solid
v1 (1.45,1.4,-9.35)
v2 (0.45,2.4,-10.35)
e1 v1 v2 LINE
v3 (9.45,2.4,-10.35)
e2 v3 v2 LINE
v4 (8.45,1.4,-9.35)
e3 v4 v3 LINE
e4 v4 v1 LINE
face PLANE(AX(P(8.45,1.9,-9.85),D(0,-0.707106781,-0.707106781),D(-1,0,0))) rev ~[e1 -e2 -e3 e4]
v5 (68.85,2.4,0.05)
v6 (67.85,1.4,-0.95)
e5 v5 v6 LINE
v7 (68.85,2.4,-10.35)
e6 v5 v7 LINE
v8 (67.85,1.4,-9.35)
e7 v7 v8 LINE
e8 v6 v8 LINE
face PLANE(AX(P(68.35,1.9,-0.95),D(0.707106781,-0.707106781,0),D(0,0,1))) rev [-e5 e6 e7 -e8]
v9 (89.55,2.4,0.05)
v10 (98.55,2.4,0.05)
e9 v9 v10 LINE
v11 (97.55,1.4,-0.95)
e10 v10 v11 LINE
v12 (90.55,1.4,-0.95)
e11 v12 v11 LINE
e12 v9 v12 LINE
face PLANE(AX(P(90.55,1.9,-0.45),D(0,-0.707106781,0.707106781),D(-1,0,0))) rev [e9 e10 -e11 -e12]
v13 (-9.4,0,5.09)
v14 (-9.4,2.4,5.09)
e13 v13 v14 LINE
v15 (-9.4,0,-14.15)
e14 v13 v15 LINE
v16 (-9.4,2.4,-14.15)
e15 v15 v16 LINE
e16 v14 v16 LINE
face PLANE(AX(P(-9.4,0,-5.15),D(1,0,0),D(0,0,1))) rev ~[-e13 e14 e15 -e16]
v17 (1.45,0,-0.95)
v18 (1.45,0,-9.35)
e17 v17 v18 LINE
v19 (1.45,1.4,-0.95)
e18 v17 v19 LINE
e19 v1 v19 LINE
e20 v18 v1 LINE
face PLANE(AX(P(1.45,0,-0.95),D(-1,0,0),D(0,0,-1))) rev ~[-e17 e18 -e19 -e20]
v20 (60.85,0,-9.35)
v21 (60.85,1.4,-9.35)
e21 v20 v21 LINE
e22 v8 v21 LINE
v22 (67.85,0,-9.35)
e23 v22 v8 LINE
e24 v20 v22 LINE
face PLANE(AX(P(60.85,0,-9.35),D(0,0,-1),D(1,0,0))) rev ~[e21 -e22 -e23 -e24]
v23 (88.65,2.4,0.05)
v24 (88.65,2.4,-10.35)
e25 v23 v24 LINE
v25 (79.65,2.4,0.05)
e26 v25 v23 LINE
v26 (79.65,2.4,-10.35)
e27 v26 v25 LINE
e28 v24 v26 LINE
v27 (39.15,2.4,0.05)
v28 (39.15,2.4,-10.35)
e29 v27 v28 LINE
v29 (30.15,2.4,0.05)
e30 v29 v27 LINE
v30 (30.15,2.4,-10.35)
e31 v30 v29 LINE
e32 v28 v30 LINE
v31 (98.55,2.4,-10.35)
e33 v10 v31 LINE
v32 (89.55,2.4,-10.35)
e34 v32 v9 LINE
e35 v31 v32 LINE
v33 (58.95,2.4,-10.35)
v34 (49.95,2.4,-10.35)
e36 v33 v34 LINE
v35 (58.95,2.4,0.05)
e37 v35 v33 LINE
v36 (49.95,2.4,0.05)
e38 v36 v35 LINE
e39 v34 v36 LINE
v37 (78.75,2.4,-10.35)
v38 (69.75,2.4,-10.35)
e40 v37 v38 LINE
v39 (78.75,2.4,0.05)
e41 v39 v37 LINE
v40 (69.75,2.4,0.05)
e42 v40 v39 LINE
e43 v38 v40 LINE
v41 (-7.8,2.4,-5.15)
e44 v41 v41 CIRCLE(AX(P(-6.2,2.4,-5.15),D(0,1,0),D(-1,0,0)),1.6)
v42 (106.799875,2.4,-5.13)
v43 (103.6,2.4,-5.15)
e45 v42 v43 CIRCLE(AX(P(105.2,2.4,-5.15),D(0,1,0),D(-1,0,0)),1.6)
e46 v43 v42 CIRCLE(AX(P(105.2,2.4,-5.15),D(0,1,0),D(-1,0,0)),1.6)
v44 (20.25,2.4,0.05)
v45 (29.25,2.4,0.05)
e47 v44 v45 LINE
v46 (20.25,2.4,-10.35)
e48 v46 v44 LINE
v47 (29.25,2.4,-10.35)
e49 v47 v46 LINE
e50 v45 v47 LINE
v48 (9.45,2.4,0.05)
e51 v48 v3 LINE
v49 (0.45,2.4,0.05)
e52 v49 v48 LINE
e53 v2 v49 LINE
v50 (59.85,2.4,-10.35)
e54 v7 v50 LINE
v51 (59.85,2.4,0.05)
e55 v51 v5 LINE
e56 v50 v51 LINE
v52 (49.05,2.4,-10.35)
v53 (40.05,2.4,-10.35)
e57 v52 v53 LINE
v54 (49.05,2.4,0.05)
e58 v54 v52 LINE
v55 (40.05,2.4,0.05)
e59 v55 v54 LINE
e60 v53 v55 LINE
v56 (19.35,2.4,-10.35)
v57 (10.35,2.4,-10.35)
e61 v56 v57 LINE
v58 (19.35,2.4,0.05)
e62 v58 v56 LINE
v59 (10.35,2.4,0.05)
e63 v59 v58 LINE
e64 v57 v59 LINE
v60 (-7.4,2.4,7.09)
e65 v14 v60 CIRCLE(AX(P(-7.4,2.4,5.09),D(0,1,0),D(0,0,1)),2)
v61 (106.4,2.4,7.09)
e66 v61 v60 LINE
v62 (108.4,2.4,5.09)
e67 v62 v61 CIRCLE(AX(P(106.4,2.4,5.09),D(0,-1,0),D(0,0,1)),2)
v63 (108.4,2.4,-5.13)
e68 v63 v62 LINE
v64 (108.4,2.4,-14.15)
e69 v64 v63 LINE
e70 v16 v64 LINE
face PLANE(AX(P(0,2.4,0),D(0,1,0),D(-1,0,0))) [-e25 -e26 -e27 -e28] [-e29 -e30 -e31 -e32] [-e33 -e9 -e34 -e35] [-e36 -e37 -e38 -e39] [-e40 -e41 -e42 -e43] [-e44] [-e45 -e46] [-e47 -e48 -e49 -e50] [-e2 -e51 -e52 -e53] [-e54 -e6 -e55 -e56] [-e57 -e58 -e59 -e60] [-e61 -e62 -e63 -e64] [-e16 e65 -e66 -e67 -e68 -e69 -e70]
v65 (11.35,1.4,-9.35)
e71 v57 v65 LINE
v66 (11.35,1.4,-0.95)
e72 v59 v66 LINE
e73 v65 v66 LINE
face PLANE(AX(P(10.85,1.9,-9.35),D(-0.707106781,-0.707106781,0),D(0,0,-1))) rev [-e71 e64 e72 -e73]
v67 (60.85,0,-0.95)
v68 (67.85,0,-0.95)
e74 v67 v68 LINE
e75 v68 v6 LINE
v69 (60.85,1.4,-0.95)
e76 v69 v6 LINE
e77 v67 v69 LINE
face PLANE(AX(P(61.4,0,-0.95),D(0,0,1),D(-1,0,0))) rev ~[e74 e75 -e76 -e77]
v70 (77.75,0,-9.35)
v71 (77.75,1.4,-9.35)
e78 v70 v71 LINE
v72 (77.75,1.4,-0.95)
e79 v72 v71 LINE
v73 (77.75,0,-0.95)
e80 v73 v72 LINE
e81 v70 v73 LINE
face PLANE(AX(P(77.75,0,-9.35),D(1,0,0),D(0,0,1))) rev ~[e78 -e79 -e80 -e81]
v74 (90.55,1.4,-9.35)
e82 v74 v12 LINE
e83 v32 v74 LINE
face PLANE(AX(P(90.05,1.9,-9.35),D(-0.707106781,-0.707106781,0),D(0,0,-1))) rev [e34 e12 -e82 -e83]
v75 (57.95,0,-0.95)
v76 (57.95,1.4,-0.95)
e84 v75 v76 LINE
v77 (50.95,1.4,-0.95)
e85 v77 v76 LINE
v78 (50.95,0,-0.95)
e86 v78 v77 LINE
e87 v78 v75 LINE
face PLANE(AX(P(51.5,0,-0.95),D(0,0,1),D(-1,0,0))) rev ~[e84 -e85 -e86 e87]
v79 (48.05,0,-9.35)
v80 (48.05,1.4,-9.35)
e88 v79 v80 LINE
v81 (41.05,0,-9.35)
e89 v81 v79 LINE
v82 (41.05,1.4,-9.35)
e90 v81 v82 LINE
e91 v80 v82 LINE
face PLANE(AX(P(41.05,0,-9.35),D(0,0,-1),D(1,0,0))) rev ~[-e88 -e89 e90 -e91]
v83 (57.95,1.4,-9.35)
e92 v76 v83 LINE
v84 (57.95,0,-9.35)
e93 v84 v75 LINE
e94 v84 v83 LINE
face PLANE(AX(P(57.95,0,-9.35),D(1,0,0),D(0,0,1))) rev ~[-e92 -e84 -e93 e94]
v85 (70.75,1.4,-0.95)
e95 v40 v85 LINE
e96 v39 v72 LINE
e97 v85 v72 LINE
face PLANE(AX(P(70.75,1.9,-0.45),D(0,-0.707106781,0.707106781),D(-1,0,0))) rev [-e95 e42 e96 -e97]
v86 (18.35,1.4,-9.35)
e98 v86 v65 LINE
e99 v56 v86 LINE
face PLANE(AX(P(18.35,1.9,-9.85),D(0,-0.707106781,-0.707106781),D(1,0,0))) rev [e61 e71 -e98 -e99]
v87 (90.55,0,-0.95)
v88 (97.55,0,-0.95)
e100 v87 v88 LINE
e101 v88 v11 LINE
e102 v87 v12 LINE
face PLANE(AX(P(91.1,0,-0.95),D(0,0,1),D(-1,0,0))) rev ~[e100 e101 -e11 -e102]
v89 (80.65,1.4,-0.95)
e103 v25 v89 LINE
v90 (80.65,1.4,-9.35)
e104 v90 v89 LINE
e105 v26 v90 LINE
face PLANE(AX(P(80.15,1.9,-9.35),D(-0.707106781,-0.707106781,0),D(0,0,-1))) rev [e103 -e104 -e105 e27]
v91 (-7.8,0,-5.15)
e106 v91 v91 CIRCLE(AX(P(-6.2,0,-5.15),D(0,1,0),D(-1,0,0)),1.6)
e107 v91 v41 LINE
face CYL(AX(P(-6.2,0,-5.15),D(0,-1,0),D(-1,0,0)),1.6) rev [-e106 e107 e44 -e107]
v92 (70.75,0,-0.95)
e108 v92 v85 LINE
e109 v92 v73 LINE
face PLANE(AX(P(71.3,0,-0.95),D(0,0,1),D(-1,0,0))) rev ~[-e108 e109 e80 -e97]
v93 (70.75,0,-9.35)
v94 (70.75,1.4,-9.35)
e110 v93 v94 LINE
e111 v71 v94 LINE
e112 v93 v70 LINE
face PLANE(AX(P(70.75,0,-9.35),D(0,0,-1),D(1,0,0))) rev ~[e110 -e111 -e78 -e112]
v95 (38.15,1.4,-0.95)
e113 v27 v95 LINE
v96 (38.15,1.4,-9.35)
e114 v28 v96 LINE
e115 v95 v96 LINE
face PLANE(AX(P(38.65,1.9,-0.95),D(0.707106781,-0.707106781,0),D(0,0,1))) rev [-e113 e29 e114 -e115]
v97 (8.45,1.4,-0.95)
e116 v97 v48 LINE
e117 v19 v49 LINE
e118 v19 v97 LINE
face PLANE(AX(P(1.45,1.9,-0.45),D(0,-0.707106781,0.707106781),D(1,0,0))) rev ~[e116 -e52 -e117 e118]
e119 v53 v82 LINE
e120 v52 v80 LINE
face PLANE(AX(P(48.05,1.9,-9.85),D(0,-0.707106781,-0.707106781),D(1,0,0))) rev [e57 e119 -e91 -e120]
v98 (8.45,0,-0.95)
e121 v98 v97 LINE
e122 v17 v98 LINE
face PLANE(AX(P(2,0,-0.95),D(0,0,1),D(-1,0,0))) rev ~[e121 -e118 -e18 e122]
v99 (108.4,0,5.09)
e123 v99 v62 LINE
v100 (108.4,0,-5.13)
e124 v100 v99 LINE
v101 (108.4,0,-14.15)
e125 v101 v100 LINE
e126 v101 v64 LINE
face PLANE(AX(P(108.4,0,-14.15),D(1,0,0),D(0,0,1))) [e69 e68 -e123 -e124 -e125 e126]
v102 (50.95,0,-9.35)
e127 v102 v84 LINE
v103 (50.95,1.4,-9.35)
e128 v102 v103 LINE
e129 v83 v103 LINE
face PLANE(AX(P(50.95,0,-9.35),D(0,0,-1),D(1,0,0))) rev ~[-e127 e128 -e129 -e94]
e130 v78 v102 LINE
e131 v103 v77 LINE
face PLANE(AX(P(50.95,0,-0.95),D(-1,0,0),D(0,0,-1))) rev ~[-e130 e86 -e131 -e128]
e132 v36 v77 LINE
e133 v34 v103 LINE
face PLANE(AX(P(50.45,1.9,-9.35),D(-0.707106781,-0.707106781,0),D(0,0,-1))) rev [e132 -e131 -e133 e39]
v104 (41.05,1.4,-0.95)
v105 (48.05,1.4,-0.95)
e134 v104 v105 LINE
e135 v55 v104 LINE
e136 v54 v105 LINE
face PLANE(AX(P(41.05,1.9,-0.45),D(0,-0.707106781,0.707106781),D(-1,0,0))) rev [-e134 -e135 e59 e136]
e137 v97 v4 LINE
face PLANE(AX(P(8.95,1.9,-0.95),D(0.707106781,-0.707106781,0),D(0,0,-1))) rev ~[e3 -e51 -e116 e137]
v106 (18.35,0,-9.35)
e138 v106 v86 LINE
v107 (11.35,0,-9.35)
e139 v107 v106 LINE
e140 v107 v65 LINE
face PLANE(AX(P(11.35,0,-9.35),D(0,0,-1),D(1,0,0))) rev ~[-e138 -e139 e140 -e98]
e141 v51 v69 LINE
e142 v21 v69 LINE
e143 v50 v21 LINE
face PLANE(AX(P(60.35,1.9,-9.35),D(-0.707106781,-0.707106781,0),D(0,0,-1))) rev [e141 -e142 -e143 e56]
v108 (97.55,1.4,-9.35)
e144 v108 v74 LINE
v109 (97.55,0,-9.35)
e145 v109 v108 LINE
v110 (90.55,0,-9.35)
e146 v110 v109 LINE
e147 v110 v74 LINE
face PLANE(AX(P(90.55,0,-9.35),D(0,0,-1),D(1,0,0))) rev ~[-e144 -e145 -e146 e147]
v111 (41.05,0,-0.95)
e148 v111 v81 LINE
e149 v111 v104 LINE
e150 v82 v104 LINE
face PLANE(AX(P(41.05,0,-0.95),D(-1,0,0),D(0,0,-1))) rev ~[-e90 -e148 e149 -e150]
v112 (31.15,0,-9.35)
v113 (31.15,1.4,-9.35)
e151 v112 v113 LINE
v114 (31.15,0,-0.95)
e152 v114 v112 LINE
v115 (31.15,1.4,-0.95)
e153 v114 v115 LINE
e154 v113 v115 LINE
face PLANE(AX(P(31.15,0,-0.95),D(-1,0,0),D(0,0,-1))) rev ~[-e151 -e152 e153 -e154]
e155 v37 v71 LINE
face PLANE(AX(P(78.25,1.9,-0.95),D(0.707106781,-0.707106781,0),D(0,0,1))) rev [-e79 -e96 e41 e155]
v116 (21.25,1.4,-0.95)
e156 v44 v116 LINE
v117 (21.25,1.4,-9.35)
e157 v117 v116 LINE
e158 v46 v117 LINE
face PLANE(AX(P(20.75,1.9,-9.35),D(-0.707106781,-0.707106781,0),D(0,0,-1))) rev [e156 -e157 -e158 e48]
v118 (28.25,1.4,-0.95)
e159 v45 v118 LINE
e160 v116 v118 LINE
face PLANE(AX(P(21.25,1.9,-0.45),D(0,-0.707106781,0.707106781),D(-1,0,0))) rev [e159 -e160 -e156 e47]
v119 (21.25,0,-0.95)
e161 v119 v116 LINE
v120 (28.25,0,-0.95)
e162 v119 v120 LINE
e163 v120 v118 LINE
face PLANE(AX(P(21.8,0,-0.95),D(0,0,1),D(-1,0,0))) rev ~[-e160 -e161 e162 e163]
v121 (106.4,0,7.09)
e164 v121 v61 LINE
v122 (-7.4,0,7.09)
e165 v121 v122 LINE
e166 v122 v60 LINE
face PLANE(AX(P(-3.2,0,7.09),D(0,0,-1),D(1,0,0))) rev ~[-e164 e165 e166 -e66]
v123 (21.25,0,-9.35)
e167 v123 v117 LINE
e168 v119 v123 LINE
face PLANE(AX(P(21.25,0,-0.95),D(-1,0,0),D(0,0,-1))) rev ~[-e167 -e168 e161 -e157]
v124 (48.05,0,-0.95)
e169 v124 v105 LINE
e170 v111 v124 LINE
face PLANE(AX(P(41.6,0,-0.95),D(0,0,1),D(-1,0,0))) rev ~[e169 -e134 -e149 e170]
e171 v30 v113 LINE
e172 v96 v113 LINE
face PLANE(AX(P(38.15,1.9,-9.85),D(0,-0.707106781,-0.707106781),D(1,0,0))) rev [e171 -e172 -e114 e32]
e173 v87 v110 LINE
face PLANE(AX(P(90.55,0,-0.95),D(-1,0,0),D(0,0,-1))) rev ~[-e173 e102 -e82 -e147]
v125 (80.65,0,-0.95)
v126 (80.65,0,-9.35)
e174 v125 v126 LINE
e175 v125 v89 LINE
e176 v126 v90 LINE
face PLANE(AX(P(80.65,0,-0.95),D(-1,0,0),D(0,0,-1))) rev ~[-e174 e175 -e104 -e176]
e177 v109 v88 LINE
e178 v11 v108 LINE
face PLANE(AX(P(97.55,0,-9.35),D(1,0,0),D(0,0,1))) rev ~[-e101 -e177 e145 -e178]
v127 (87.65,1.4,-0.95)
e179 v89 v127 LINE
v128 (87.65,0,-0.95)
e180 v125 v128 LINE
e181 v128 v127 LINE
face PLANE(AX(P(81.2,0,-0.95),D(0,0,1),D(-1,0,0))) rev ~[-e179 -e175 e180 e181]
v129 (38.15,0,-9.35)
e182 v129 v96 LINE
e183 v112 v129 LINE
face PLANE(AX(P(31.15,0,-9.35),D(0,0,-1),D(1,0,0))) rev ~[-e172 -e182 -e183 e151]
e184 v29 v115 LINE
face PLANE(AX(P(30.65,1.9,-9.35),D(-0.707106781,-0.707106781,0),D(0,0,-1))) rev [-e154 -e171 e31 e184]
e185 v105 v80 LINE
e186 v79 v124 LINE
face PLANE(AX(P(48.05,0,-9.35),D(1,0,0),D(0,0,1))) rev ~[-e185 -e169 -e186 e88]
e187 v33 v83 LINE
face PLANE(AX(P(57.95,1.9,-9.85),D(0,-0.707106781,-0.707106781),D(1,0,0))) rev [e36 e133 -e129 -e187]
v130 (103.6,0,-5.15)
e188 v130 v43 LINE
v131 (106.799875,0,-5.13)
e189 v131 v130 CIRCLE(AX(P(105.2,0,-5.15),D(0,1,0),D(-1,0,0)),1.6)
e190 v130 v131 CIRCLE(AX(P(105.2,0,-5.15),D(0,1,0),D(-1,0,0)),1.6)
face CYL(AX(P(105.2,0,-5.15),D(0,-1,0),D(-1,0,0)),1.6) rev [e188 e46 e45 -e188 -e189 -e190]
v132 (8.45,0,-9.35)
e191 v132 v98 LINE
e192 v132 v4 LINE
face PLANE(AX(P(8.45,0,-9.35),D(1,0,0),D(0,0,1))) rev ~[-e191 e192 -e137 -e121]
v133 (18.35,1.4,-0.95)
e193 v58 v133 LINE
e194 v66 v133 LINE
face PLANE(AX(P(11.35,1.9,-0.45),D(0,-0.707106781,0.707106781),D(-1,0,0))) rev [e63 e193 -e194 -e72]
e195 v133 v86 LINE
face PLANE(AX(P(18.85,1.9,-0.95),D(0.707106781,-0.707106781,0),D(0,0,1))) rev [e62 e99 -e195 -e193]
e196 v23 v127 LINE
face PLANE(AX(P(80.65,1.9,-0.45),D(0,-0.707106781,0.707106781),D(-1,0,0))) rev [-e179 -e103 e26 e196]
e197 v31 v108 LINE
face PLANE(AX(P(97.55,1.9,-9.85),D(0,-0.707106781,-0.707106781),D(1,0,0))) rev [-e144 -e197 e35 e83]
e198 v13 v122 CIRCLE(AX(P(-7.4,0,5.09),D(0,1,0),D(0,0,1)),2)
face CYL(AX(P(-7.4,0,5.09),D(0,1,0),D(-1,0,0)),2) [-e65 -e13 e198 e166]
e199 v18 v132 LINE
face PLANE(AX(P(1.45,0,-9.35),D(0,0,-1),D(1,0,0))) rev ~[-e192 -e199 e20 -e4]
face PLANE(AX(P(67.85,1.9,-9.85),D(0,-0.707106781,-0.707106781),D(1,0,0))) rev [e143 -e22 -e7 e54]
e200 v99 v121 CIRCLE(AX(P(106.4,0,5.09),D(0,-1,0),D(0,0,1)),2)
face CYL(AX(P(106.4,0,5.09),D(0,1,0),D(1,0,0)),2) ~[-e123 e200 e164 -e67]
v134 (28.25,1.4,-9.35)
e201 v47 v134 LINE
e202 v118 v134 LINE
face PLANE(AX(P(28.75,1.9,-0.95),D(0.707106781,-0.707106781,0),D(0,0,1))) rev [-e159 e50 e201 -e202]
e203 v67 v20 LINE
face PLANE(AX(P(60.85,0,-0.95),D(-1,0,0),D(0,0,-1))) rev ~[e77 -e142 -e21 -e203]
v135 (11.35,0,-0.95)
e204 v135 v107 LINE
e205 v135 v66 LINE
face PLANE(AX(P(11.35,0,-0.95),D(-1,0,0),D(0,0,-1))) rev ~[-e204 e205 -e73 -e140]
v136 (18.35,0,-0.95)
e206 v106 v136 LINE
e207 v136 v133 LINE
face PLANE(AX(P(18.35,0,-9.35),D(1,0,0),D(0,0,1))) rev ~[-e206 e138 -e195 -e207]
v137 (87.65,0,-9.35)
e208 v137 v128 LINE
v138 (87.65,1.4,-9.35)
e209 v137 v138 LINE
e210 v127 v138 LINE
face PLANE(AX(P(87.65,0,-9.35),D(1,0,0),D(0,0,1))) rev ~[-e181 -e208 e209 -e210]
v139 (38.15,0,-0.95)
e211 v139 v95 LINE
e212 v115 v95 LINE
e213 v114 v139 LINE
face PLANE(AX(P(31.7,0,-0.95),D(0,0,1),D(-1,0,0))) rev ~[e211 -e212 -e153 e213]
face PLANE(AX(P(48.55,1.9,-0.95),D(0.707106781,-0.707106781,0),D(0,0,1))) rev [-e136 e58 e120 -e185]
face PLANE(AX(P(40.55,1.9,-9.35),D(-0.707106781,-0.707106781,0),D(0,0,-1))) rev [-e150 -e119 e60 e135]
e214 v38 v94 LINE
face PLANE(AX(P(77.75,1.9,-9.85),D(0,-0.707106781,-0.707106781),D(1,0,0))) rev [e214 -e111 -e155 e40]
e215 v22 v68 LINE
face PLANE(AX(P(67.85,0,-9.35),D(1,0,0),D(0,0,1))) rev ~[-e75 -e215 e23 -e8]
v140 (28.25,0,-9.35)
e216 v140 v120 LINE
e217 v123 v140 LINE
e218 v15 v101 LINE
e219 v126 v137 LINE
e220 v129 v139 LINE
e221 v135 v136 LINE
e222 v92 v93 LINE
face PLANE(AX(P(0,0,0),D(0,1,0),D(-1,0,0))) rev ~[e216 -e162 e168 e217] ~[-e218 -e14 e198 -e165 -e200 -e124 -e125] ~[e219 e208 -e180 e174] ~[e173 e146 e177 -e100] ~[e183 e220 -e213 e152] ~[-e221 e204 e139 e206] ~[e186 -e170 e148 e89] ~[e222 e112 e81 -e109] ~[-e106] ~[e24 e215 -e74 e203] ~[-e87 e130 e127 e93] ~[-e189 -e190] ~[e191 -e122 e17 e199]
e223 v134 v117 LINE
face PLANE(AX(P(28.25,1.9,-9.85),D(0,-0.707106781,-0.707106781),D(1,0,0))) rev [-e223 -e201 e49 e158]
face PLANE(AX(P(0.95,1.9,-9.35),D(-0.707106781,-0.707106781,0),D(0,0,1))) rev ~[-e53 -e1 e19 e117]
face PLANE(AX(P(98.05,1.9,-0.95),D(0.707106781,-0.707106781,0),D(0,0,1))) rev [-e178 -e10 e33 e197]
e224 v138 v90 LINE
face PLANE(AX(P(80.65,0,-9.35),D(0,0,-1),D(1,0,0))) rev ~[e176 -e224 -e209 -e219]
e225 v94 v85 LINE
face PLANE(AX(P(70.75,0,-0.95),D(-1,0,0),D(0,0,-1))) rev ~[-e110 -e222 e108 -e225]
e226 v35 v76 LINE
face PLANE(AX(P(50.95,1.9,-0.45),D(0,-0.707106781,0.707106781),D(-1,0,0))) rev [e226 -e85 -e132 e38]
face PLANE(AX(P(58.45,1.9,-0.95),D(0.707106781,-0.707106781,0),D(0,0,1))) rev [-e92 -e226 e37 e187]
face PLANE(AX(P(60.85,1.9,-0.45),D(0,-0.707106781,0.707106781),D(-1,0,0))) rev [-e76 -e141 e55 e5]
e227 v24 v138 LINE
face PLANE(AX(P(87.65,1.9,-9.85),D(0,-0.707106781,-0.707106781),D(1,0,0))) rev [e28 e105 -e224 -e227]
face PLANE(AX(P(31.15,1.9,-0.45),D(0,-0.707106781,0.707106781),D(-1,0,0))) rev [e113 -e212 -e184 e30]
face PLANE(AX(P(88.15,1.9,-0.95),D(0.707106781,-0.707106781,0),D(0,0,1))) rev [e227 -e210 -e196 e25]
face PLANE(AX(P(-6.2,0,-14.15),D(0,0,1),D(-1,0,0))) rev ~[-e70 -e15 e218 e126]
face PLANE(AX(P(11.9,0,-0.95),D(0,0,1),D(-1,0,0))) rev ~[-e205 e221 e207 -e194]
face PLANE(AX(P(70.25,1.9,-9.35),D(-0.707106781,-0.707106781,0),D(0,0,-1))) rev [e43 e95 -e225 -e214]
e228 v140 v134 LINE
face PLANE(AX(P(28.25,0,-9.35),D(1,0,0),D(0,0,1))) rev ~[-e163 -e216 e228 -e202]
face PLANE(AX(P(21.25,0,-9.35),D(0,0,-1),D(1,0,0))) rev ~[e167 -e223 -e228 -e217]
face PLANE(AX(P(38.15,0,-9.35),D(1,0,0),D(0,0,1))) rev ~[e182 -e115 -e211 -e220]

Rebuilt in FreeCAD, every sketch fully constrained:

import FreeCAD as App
import Part
import Sketcher

V = App.Vector
Q = App.Units.Quantity


def edges_at(feature, points):
    """Names of the edges that pass closest to the given points."""
    edges = feature.Shape.Edges
    near = lambda p: min(range(len(edges)), key=lambda i: edges[i].distToShape(Part.Vertex(*p))[0])
    return sorted({f"Edge{near(p) + 1}" for p in points})

doc = App.newDocument("Part")
body = doc.addObject("PartDesign::Body", "Body")

sketch1 = body.newObject("Sketcher::SketchObject", "Sketch")
sketch1.AttachmentSupport = (doc.getObject("XZ_Plane"), [""])
sketch1.MapMode = "FlatFace"
sketch1.addGeometry([
    Part.LineSegment(V(-9.4, 7.1, 0), V(108.4, 7.1, 0)),
    Part.LineSegment(V(108.4, 7.1, 0), V(108.4, -5.1, 0)),
    Part.LineSegment(V(108.4, -5.1, 0), V(108.4, -14.2, 0)),
    Part.LineSegment(V(108.4, -14.2, 0), V(-9.4, -14.2, 0)),
    Part.LineSegment(V(-9.4, -14.2, 0), V(-9.4, 7.1, 0)),
    Part.Circle(V(-6.2, -5.2, 0), V(0, 0, 1), 1.6),
    Part.Circle(V(105.2, -5.2, 0), V(0, 0, 1), 1.6),
], False)
sketch1.addConstraint([
    Sketcher.Constraint("Coincident", 0, 2, 1, 1),
    Sketcher.Constraint("Coincident", 1, 2, 2, 1),
    Sketcher.Constraint("Coincident", 2, 2, 3, 1),
    Sketcher.Constraint("Coincident", 3, 2, 4, 1),
    Sketcher.Constraint("Coincident", 4, 2, 0, 1),
    Sketcher.Constraint("Horizontal", 0),
    Sketcher.Constraint("Vertical", 1),
    Sketcher.Constraint("Vertical", 2),
    Sketcher.Constraint("Horizontal", 3),
    Sketcher.Constraint("Vertical", 4),
    Sketcher.Constraint("Equal", 5, 6),
    Sketcher.Constraint("Horizontal", 5, 3, 6, 3),
    Sketcher.Constraint("Diameter", 5, Q("3.2 mm")),
    Sketcher.Constraint("DistanceX", 6, 3, 0, 2, Q("3.2 mm")),
    Sketcher.Constraint("DistanceX", 3, 2, 5, 3, Q("3.2 mm")),
    Sketcher.Constraint("DistanceX", 0, 1, 0, 2, Q("117.8 mm")),
    Sketcher.Constraint("DistanceY", 2, 2, 6, 3, Q("9 mm")),
    Sketcher.Constraint("DistanceY", 1, 2, 1, 1, Q("12.22 mm")),
    Sketcher.Constraint("DistanceY", 2, 2, 2, 1, Q("9.02 mm")),
    Sketcher.Constraint("DistanceX", 5, 3, -1, 1, Q("6.2 mm")),
    Sketcher.Constraint("DistanceY", 5, 3, -1, 1, Q("5.15 mm")),
])
pad1 = body.newObject("PartDesign::Pad", "Pad")
pad1.Profile = sketch1
pad1.Length = 2.4
pad1.Reversed = True

sketch2 = body.newObject("Sketcher::SketchObject", "Sketch001")
sketch2.AttachmentSupport = (doc.getObject("XZ_Plane"), [""])
sketch2.MapMode = "FlatFace"
sketch2.addGeometry([
    Part.LineSegment(V(1, -1, 0), V(8, -1, 0)),
    Part.LineSegment(V(8, -1, 0), V(8, -9, 0)),
    Part.LineSegment(V(8, -9, 0), V(1, -9, 0)),
    Part.LineSegment(V(1, -9, 0), V(1, -1, 0)),
], False)
sketch2.addConstraint([
    Sketcher.Constraint("Coincident", 0, 2, 1, 1),
    Sketcher.Constraint("Coincident", 1, 2, 2, 1),
    Sketcher.Constraint("Coincident", 2, 2, 3, 1),
    Sketcher.Constraint("Coincident", 3, 2, 0, 1),
    Sketcher.Constraint("Horizontal", 0),
    Sketcher.Constraint("Vertical", 1),
    Sketcher.Constraint("Horizontal", 2),
    Sketcher.Constraint("Vertical", 3),
    Sketcher.Constraint("DistanceX", 0, 1, 0, 2, Q("7 mm")),
    Sketcher.Constraint("DistanceY", 1, 2, 1, 1, Q("8.4 mm")),
    Sketcher.Constraint("DistanceX", -1, 1, 0, 2, Q("8.45 mm")),
    Sketcher.Constraint("DistanceY", 0, 2, -1, 1, Q("0.95 mm")),
])
pocket1 = body.newObject("PartDesign::Pocket", "Pocket")
pocket1.Profile = sketch2
pocket1.Type = "ThroughAll"
doc.recompute()

chamfer = body.newObject("PartDesign::Chamfer", "Chamfer")
chamfer.Base = (pocket1, edges_at(pocket1, [
    (4.95, 2.4, -9.35),
    (1.45, 2.4, -5.15),
    (8.45, 2.4, -5.15),
    (4.95, 2.4, -0.95),
]))
chamfer.Size = 1
doc.recompute()

linearpattern = body.newObject("PartDesign::LinearPattern", "LinearPattern")
linearpattern.Originals = [pocket1, chamfer]
linearpattern.Direction = (doc.getObject("X_Axis"), [""])
linearpattern.Mode = "offset"
linearpattern.Offset = 9.9
linearpattern.Occurrences = 10
body.Tip = linearpattern
doc.recompute()

fillet = body.newObject("PartDesign::Fillet", "Fillet")
fillet.Base = (linearpattern, edges_at(linearpattern, [(108.4, 1.2, 7.09), (-9.4, 1.2, 7.09)]))
fillet.Radius = 2

doc.recompute()
